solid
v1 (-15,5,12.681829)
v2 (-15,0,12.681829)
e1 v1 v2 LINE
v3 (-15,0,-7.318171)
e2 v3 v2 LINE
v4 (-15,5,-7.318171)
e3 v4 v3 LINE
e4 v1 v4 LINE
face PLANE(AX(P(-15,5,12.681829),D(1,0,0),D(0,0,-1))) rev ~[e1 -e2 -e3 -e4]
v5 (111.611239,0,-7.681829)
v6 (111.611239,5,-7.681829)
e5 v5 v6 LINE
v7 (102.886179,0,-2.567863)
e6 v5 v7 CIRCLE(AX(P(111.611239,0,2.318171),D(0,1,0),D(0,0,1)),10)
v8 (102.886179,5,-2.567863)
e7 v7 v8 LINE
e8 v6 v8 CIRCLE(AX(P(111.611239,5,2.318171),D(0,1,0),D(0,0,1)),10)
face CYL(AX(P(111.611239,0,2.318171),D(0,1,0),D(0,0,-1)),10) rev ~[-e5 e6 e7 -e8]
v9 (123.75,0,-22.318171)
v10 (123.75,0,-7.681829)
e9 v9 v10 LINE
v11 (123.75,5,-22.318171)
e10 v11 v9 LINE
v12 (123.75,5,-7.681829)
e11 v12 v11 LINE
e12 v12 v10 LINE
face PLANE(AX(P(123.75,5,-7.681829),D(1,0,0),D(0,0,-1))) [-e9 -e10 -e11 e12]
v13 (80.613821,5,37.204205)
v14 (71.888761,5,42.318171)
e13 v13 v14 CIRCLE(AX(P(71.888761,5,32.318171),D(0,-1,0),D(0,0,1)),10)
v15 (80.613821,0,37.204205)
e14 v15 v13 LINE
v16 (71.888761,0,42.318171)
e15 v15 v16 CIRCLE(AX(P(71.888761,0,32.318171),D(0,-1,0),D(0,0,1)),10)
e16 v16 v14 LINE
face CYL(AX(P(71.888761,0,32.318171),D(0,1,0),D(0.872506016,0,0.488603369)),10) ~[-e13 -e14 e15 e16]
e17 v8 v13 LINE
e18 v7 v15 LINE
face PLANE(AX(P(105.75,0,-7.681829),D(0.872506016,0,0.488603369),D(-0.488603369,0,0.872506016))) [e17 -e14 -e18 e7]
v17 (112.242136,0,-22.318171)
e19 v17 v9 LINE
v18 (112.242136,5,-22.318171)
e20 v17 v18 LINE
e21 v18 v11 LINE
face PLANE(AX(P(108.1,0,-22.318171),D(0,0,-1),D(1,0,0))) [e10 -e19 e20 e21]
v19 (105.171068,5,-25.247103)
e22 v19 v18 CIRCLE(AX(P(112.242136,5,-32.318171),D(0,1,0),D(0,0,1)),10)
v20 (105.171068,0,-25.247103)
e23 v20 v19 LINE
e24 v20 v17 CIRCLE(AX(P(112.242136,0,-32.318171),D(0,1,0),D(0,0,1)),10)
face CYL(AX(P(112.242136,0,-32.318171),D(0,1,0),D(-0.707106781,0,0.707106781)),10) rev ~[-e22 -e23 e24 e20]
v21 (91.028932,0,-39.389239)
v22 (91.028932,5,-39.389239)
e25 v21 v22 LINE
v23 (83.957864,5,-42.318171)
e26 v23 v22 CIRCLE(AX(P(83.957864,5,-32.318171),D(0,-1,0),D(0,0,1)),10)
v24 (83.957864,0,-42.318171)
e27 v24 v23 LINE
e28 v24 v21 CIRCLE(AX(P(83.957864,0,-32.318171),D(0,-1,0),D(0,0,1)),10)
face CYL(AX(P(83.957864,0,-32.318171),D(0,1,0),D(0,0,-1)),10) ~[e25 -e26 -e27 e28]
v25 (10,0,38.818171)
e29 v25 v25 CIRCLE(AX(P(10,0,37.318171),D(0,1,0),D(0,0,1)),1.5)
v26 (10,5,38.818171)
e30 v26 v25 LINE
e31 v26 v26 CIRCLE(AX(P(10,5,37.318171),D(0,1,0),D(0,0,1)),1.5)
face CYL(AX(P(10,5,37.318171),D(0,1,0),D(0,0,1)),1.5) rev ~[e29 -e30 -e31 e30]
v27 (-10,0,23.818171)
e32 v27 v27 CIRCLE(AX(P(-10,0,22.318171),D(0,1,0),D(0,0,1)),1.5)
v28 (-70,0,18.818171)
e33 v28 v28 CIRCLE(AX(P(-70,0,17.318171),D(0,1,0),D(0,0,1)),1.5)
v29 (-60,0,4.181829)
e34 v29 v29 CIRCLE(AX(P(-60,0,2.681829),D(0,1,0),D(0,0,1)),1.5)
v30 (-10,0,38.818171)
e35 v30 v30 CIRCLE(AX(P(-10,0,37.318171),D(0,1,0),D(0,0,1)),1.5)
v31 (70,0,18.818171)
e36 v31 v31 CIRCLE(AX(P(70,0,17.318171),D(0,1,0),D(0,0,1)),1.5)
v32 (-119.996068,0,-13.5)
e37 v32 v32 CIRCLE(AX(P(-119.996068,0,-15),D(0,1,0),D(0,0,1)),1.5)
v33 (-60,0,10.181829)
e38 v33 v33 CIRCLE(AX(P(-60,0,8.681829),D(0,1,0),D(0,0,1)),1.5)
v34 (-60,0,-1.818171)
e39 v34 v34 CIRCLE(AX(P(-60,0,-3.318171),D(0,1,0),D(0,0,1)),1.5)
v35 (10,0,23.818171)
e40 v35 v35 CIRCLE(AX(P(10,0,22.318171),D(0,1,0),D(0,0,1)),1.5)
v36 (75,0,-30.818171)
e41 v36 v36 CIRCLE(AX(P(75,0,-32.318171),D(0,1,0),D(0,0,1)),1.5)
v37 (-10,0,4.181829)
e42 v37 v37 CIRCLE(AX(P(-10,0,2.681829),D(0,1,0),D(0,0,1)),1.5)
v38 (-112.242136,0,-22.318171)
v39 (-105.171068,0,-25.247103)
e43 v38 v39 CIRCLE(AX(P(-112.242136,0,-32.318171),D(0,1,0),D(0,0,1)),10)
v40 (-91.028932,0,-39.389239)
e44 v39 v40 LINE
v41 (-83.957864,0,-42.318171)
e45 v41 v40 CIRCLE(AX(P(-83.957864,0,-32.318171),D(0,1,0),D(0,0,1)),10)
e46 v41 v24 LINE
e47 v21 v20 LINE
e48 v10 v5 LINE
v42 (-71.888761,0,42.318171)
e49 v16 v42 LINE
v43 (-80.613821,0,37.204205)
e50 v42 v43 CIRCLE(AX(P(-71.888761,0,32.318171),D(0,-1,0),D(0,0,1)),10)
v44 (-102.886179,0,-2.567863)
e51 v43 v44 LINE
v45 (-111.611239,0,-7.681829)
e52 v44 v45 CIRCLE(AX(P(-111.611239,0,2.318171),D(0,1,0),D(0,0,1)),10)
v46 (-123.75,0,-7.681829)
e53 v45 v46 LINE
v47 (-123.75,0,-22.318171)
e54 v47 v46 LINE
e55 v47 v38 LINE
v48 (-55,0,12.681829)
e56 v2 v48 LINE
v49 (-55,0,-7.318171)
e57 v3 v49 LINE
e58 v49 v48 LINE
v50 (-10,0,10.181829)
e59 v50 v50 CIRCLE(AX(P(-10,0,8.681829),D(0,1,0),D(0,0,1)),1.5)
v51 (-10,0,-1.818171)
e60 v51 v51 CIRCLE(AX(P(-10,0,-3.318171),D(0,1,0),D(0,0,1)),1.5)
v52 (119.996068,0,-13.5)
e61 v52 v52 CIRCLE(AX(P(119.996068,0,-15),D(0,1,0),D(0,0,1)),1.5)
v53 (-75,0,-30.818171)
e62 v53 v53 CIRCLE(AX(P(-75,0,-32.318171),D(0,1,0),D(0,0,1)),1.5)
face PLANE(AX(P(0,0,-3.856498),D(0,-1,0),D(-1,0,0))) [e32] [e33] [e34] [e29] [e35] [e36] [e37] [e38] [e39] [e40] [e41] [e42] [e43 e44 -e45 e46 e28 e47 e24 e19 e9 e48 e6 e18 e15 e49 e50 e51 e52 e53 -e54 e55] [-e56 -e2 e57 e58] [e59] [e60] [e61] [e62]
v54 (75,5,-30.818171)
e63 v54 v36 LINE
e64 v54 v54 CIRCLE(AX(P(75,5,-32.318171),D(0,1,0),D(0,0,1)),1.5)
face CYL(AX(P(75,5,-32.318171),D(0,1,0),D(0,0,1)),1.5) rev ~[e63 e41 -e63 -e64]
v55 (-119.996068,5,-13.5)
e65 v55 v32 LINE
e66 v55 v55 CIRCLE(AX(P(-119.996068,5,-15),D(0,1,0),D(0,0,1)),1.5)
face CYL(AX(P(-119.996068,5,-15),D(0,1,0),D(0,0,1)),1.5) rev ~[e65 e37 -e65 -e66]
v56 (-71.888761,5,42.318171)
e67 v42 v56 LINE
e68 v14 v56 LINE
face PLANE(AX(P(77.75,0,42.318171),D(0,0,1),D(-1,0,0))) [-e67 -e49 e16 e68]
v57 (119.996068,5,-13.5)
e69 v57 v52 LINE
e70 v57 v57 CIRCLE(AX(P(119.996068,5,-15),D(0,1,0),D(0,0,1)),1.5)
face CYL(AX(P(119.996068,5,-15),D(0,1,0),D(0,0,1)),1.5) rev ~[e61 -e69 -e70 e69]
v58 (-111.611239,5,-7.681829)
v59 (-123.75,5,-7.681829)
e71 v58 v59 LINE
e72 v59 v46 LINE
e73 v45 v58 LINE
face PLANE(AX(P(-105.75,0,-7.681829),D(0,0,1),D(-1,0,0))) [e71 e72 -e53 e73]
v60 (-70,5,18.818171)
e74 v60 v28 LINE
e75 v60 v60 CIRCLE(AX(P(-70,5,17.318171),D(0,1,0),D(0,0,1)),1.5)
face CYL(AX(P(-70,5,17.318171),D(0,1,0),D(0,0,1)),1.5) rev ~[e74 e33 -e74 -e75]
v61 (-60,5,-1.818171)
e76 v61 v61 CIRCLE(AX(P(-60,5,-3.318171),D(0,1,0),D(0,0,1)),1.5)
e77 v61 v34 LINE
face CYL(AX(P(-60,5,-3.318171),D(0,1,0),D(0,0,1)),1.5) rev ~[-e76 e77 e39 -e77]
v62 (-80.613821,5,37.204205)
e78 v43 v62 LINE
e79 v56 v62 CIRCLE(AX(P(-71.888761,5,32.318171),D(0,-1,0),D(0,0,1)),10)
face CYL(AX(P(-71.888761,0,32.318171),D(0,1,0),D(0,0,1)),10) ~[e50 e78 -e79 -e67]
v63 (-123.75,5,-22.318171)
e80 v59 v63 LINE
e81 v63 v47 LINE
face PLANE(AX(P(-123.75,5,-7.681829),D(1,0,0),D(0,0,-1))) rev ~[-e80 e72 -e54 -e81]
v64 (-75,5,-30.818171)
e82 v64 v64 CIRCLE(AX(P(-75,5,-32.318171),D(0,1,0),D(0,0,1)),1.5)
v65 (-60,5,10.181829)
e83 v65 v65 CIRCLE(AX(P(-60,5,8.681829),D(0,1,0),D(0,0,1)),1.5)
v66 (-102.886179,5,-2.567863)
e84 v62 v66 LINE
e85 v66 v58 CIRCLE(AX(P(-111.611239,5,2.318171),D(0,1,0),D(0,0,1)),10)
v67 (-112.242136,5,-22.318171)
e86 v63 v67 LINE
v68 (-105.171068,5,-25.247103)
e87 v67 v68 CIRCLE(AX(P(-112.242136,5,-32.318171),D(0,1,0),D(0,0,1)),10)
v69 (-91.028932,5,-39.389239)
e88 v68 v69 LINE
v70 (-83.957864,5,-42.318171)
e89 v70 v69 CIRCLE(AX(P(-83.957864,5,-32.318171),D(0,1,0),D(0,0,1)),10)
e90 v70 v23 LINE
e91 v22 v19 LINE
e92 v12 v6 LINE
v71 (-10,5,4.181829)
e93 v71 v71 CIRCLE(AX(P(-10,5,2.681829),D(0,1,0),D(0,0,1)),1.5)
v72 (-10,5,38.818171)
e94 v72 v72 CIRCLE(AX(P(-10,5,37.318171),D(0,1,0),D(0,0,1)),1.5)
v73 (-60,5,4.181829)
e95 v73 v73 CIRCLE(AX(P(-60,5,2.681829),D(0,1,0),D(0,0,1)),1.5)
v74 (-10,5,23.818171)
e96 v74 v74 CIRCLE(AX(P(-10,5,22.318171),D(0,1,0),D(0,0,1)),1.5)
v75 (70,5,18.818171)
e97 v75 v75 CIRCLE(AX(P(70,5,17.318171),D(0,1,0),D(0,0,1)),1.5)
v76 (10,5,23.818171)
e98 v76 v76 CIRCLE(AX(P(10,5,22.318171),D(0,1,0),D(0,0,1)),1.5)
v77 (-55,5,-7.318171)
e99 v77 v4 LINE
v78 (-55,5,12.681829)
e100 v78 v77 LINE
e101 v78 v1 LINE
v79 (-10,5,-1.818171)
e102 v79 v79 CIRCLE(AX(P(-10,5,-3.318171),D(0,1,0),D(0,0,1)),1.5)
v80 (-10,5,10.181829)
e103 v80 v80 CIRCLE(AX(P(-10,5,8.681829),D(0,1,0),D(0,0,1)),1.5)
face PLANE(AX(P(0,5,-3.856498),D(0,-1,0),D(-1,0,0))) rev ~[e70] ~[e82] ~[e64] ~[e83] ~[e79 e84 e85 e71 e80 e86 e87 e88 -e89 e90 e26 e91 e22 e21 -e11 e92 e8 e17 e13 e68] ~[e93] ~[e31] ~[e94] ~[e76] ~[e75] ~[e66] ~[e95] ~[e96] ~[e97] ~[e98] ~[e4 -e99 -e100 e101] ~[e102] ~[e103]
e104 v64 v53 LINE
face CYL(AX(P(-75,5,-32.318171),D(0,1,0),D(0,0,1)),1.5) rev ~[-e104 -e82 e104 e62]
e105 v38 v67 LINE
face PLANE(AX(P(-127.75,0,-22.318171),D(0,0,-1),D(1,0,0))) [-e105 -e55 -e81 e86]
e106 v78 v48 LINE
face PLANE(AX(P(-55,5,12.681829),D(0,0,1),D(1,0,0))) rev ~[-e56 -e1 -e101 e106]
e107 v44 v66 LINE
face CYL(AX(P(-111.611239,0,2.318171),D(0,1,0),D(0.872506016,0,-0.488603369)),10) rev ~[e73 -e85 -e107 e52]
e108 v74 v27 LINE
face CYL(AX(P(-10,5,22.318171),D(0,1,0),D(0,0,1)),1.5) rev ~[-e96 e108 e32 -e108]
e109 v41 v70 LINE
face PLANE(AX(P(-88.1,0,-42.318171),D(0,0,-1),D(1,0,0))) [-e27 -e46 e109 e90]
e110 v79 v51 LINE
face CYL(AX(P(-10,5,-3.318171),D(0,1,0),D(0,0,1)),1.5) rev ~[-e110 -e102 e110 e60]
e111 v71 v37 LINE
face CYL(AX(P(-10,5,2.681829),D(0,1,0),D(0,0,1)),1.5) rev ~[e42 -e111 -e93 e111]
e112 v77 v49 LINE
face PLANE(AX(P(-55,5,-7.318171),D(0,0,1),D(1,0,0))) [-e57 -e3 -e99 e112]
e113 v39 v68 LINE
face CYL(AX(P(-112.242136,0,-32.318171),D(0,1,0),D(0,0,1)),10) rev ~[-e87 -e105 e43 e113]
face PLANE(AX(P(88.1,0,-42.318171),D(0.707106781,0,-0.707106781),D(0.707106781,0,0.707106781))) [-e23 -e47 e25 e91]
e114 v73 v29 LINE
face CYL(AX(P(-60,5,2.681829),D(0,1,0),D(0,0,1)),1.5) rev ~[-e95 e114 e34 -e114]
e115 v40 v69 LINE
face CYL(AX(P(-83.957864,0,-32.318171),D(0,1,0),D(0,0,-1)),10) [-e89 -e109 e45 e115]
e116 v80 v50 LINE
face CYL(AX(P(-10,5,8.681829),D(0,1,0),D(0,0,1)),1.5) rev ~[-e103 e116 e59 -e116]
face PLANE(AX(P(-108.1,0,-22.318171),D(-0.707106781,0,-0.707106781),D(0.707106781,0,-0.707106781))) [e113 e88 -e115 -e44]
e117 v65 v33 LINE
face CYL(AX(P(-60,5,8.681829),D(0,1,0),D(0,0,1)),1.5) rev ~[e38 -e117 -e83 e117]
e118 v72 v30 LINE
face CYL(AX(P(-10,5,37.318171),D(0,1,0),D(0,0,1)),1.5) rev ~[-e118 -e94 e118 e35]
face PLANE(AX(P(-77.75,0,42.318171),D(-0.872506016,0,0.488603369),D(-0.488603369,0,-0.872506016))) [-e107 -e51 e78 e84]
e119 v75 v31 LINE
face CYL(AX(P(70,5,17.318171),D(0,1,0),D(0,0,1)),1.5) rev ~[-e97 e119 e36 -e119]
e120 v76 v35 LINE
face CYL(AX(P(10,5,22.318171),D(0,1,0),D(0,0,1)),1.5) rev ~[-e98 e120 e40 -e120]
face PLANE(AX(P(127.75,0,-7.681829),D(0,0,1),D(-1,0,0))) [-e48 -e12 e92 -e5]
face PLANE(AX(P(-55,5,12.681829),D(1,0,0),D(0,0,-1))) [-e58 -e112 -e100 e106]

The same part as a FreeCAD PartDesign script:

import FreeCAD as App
import Part
import Sketcher


def edges_at(feature, points):
    """Names of the edges that pass closest to the given points."""
    edges = feature.Shape.Edges
    near = lambda p: min(range(len(edges)), key=lambda i: edges[i].distToShape(Part.Vertex(*p))[0])
    return sorted({f"Edge{near(p) + 1}" for p in points})

doc = App.newDocument("Part")
body = doc.addObject("PartDesign::Body", "Body")

# Sketch on XZ plane
sketch1 = body.newObject("Sketcher::SketchObject", "Sketch")
sketch1.AttachmentSupport = (doc.getObject("XZ_Plane"), [""])
sketch1.MapMode = "FlatFace"
sketch1.addGeometry([
    Part.LineSegment(App.Vector(88.1, -42.318171, 0), App.Vector(-88.1, -42.318171, 0)),  # 0
    Part.LineSegment(App.Vector(-88.1, -42.318171, 0), App.Vector(-108.1, -22.318171, 0)),  # 1
    Part.LineSegment(App.Vector(-108.1, -22.318171, 0), App.Vector(-127.75, -22.318171, 0)),  # 2
    Part.LineSegment(App.Vector(-127.75, -22.318171, 0), App.Vector(-127.75, -7.681829, 0)),  # 3
    Part.LineSegment(App.Vector(-127.75, -7.681829, 0), App.Vector(-105.75, -7.681829, 0)),  # 4
    Part.LineSegment(App.Vector(-105.75, -7.681829, 0), App.Vector(-77.75, 42.318171, 0)),  # 5
    Part.LineSegment(App.Vector(-77.75, 42.318171, 0), App.Vector(77.75, 42.318171, 0)),  # 6
    Part.LineSegment(App.Vector(77.75, 42.318171, 0), App.Vector(105.75, -7.681829, 0)),  # 7
    Part.LineSegment(App.Vector(105.75, -7.681829, 0), App.Vector(127.75, -7.681829, 0)),  # 8
    Part.LineSegment(App.Vector(127.75, -7.681829, 0), App.Vector(127.75, -22.318171, 0)),  # 9
    Part.LineSegment(App.Vector(127.75, -22.318171, 0), App.Vector(108.1, -22.318171, 0)),  # 10
    Part.LineSegment(App.Vector(108.1, -22.318171, 0), App.Vector(88.1, -42.318171, 0)),  # 11
], False)
sketch1.addConstraint([
    Sketcher.Constraint("Coincident", 0, 2, 1, 1),
    Sketcher.Constraint("Coincident", 1, 2, 2, 1),
    Sketcher.Constraint("Coincident", 2, 2, 3, 1),
    Sketcher.Constraint("Coincident", 3, 2, 4, 1),
    Sketcher.Constraint("Coincident", 4, 2, 5, 1),
    Sketcher.Constraint("Coincident", 5, 2, 6, 1),
    Sketcher.Constraint("Coincident", 6, 2, 7, 1),
    Sketcher.Constraint("Coincident", 7, 2, 8, 1),
    Sketcher.Constraint("Coincident", 8, 2, 9, 1),
    Sketcher.Constraint("Coincident", 9, 2, 10, 1),
    Sketcher.Constraint("Coincident", 10, 2, 11, 1),
    Sketcher.Constraint("Coincident", 11, 2, 0, 1),
    Sketcher.Constraint("Horizontal", 0),
    Sketcher.Constraint("Horizontal", 2),
    Sketcher.Constraint("Vertical", 3),
    Sketcher.Constraint("Horizontal", 4),
    Sketcher.Constraint("Horizontal", 6),
    Sketcher.Constraint("Horizontal", 8),
    Sketcher.Constraint("Vertical", 9),
    Sketcher.Constraint("Horizontal", 10),
    Sketcher.Constraint("Symmetric", 4, 2, 7, 2, -2),
    Sketcher.Constraint("Symmetric", 2, 2, 9, 2, -2),
    Sketcher.Constraint("Perpendicular", 1, 11),
    Sketcher.Constraint("Equal", 2, 10),
    Sketcher.Constraint("Equal", 5, 7),
    Sketcher.Constraint("Equal", 1, 11),
    Sketcher.Constraint("DistanceX", 4, 1, 4, 2, 22.0),
    Sketcher.Constraint("DistanceX", 0, 2, 0, 1, 176.2),
    Sketcher.Constraint("DistanceX", 6, 1, 6, 2, 155.5),
    Sketcher.Constraint("DistanceX", 1, 2, 0, 2, 20.0),
    Sketcher.Constraint("DistanceX", 4, 2, 5, 2, 28.0),
    Sketcher.Constraint("DistanceY", 4, 2, 5, 2, 50.0),
    Sketcher.Constraint("DistanceY", 3, 1, 3, 2, 14.636342),
    Sketcher.Constraint("DistanceY", 0, 2, -1, 1, 42.318171),
])
pad1 = body.newObject("PartDesign::Pad", "Pad")
pad1.Profile = sketch1
pad1.Length = 5
pad1.Reversed = True
doc.recompute()

fillet = body.newObject("PartDesign::Fillet", "Fillet")
fillet.Base = (pad1, edges_at(pad1, [
    (-88.1, 2.5, -42.318),
    (88.1, 2.5, -42.318),
    (108.1, 2.5, -22.318),
    (105.75, 2.5, -7.682),
    (77.75, 2.5, 42.318),
    (-77.75, 2.5, 42.318),
    (-105.75, 2.5, -7.682),
    (-108.1, 2.5, -22.318),
]))
fillet.Radius = 10

# Sketch on XZ plane
sketch2 = body.newObject("Sketcher::SketchObject", "Sketch001")
sketch2.AttachmentSupport = (doc.getObject("XZ_Plane"), [""])
sketch2.MapMode = "FlatFace"
sketch2.AttachmentOffset = App.Placement(App.Vector(0, 0, -5), App.Rotation())
sketch2.addGeometry([
    Part.Circle(App.Vector(70, 17.318171, 0), App.Vector(0, 0, 1), 1.5),  # 0
    Part.Circle(App.Vector(-70, 17.318171, 0), App.Vector(0, 0, 1), 1.5),  # 1
    Part.Circle(App.Vector(-119.996068, -15, 0), App.Vector(0, 0, 1), 1.5),  # 2
    Part.Circle(App.Vector(119.996068, -15, 0), App.Vector(0, 0, 1), 1.5),  # 3
    Part.Circle(App.Vector(-75, -32.318171, 0), App.Vector(0, 0, 1), 1.5),  # 4
    Part.Circle(App.Vector(75, -32.318171, 0), App.Vector(0, 0, 1), 1.5),  # 5
    Part.Circle(App.Vector(-10, 22.318171, 0), App.Vector(0, 0, 1), 1.5),  # 6
    Part.Circle(App.Vector(10, 22.318171, 0), App.Vector(0, 0, 1), 1.5),  # 7
    Part.Circle(App.Vector(-10, 37.318171, 0), App.Vector(0, 0, 1), 1.5),  # 8
    Part.Circle(App.Vector(10, 37.318171, 0), App.Vector(0, 0, 1), 1.5),  # 9
    Part.Circle(App.Vector(-60, 2.681829, 0), App.Vector(0, 0, 1), 1.5),  # 10
    Part.Circle(App.Vector(-10, 2.681829, 0), App.Vector(0, 0, 1), 1.5),  # 11
    Part.Circle(App.Vector(-60, -3.318171, 0), App.Vector(0, 0, 1), 1.5),  # 12
    Part.Circle(App.Vector(-60, 8.681829, 0), App.Vector(0, 0, 1), 1.5),  # 13
    Part.Circle(App.Vector(-10, -3.318171, 0), App.Vector(0, 0, 1), 1.5),  # 14
    Part.Circle(App.Vector(-10, 8.681829, 0), App.Vector(0, 0, 1), 1.5),  # 15
    Part.LineSegment(App.Vector(-55, -7.318171, 0), App.Vector(-55, 12.681829, 0)),  # 16
    Part.LineSegment(App.Vector(-55, 12.681829, 0), App.Vector(-15, 12.681829, 0)),  # 17
    Part.LineSegment(App.Vector(-15, 12.681829, 0), App.Vector(-15, -7.318171, 0)),  # 18
    Part.LineSegment(App.Vector(-15, -7.318171, 0), App.Vector(-55, -7.318171, 0)),  # 19
], False)
sketch2.addConstraint([
    Sketcher.Constraint("Coincident", 16, 2, 17, 1),
    Sketcher.Constraint("Coincident", 17, 2, 18, 1),
    Sketcher.Constraint("Coincident", 18, 2, 19, 1),
    Sketcher.Constraint("Coincident", 19, 2, 16, 1),
    Sketcher.Constraint("Vertical", 16),
    Sketcher.Constraint("Horizontal", 17),
    Sketcher.Constraint("Vertical", 18),
    Sketcher.Constraint("Horizontal", 19),
    Sketcher.Constraint("Equal", 0, 1),
    Sketcher.Constraint("Equal", 1, 2),
    Sketcher.Constraint("Equal", 2, 3),
    Sketcher.Constraint("Equal", 3, 4),
    Sketcher.Constraint("Equal", 4, 5),
    Sketcher.Constraint("Equal", 5, 6),
    Sketcher.Constraint("Equal", 6, 7),
    Sketcher.Constraint("Equal", 7, 8),
    Sketcher.Constraint("Equal", 8, 9),
    Sketcher.Constraint("Equal", 9, 10),
    Sketcher.Constraint("Equal", 10, 11),
    Sketcher.Constraint("Equal", 11, 12),
    Sketcher.Constraint("Equal", 12, 13),
    Sketcher.Constraint("Equal", 13, 14),
    Sketcher.Constraint("Equal", 14, 15),
    Sketcher.Constraint("Symmetric", 0, 3, 1, 3, -2),
    Sketcher.Constraint("Symmetric", 2, 3, 3, 3, -2),
    Sketcher.Constraint("Symmetric", 4, 3, 5, 3, -2),
    Sketcher.Constraint("Symmetric", 6, 3, 7, 3, -2),
    Sketcher.Constraint("Symmetric", 8, 3, 9, 3, -2),
    Sketcher.Constraint("Horizontal", 10, 3, 11, 3),
    Sketcher.Constraint("Horizontal", 12, 3, 14, 3),
    Sketcher.Constraint("Horizontal", 13, 3, 15, 3),
    Sketcher.Constraint("Vertical", 6, 3, 8, 3),
    Sketcher.Constraint("Vertical", 8, 3, 11, 3),
    Sketcher.Constraint("Vertical", 10, 3, 12, 3),
    Sketcher.Constraint("Vertical", 12, 3, 13, 3),
    Sketcher.Constraint("Vertical", 11, 3, 14, 3),
    Sketcher.Constraint("Vertical", 14, 3, 15, 3),
    Sketcher.Constraint("Diameter", 0, 3.0),
    Sketcher.Constraint("DistanceX", 17, 1, 17, 2, 40.0),
    Sketcher.Constraint("DistanceY", 16, 1, 16, 2, 20.0),
    Sketcher.Constraint("DistanceX", -1, 1, 0, 3, 70.0),
    Sketcher.Constraint("DistanceY", 2, 3, -1, 1, 15.0),
    Sketcher.Constraint("DistanceX", 4, 3, -1, 1, 75.0),
    Sketcher.Constraint("DistanceX", 6, 3, -1, 1, 10.0),
    Sketcher.Constraint("DistanceX", 10, 3, -1, 1, 60.0),
    Sketcher.Constraint("DistanceX", 16, 2, -1, 1, 55.0),
    Sketcher.Constraint("DistanceY", 1, 3, 6, 3, 5.0),
    Sketcher.Constraint("DistanceY", 6, 3, 8, 3, 15.0),
    Sketcher.Constraint("DistanceY", 4, 3, 10, 3, 35.0),
    Sketcher.Constraint("DistanceY", 12, 3, 10, 3, 6.0),
    Sketcher.Constraint("DistanceY", 10, 3, 13, 3, 6.0),
    Sketcher.Constraint("DistanceY", 13, 3, 16, 2, 4.0),
    Sketcher.Constraint("DistanceY", -1, 1, 0, 3, 17.318171),
    Sketcher.Constraint("DistanceY", 4, 3, -1, 1, 32.318171),
    Sketcher.Constraint("DistanceX", 2, 3, -1, 1, 119.996068),
])
pocket1 = body.newObject("PartDesign::Pocket", "Pocket")
pocket1.Profile = sketch2
pocket1.Type = "ThroughAll"
pocket1.Reversed = True

# Sketch on XZ plane
sketch3 = body.newObject("Sketcher::SketchObject", "Sketch002")
sketch3.AttachmentSupport = (doc.getObject("XZ_Plane"), [""])
sketch3.MapMode = "FlatFace"
sketch3.AttachmentOffset = App.Placement(App.Vector(0, 0, -5), App.Rotation())
sketch3.addGeometry([
    Part.LineSegment(App.Vector(-127.75, -22.318171, 0), App.Vector(-127.75, -7.681829, 0)),  # 0
    Part.LineSegment(App.Vector(-127.75, -7.681829, 0), App.Vector(-123.75, -7.681829, 0)),  # 1
    Part.LineSegment(App.Vector(-123.75, -7.681829, 0), App.Vector(-123.75, -22.318171, 0)),  # 2
    Part.LineSegment(App.Vector(-123.75, -22.318171, 0), App.Vector(-127.75, -22.318171, 0)),  # 3
    Part.LineSegment(App.Vector(123.75, -22.318171, 0), App.Vector(123.75, -7.681829, 0)),  # 4
    Part.LineSegment(App.Vector(123.75, -7.681829, 0), App.Vector(127.75, -7.681829, 0)),  # 5
    Part.LineSegment(App.Vector(127.75, -7.681829, 0), App.Vector(127.75, -22.318171, 0)),  # 6
    Part.LineSegment(App.Vector(127.75, -22.318171, 0), App.Vector(123.75, -22.318171, 0)),  # 7
], False)
sketch3.addConstraint([
    Sketcher.Constraint("Coincident", 0, 2, 1, 1),
    Sketcher.Constraint("Coincident", 1, 2, 2, 1),
    Sketcher.Constraint("Coincident", 2, 2, 3, 1),
    Sketcher.Constraint("Coincident", 3, 2, 0, 1),
    Sketcher.Constraint("Coincident", 4, 2, 5, 1),
    Sketcher.Constraint("Coincident", 5, 2, 6, 1),
    Sketcher.Constraint("Coincident", 6, 2, 7, 1),
    Sketcher.Constraint("Coincident", 7, 2, 4, 1),
    Sketcher.Constraint("Vertical", 0),
    Sketcher.Constraint("Horizontal", 1),
    Sketcher.Constraint("Vertical", 2),
    Sketcher.Constraint("Horizontal", 3),
    Sketcher.Constraint("Vertical", 4),
    Sketcher.Constraint("Horizontal", 5),
    Sketcher.Constraint("Vertical", 6),
    Sketcher.Constraint("Horizontal", 7),
    Sketcher.Constraint("Symmetric", 1, 2, 4, 2, -2),
    Sketcher.Constraint("Symmetric", 3, 2, 6, 2, -2),
    Sketcher.Constraint("DistanceX", 1, 1, 1, 2, 4.0),
    Sketcher.Constraint("DistanceX", 1, 2, 4, 2, 247.5),
    Sketcher.Constraint("DistanceY", 0, 1, 0, 2, 14.636342),
    Sketcher.Constraint("DistanceY", 0, 2, -1, 1, 7.681829),
])
pocket2 = body.newObject("PartDesign::Pocket", "Pocket001")
pocket2.Profile = sketch3
pocket2.Type = "ThroughAll"
pocket2.Reversed = True

doc.recompute()
